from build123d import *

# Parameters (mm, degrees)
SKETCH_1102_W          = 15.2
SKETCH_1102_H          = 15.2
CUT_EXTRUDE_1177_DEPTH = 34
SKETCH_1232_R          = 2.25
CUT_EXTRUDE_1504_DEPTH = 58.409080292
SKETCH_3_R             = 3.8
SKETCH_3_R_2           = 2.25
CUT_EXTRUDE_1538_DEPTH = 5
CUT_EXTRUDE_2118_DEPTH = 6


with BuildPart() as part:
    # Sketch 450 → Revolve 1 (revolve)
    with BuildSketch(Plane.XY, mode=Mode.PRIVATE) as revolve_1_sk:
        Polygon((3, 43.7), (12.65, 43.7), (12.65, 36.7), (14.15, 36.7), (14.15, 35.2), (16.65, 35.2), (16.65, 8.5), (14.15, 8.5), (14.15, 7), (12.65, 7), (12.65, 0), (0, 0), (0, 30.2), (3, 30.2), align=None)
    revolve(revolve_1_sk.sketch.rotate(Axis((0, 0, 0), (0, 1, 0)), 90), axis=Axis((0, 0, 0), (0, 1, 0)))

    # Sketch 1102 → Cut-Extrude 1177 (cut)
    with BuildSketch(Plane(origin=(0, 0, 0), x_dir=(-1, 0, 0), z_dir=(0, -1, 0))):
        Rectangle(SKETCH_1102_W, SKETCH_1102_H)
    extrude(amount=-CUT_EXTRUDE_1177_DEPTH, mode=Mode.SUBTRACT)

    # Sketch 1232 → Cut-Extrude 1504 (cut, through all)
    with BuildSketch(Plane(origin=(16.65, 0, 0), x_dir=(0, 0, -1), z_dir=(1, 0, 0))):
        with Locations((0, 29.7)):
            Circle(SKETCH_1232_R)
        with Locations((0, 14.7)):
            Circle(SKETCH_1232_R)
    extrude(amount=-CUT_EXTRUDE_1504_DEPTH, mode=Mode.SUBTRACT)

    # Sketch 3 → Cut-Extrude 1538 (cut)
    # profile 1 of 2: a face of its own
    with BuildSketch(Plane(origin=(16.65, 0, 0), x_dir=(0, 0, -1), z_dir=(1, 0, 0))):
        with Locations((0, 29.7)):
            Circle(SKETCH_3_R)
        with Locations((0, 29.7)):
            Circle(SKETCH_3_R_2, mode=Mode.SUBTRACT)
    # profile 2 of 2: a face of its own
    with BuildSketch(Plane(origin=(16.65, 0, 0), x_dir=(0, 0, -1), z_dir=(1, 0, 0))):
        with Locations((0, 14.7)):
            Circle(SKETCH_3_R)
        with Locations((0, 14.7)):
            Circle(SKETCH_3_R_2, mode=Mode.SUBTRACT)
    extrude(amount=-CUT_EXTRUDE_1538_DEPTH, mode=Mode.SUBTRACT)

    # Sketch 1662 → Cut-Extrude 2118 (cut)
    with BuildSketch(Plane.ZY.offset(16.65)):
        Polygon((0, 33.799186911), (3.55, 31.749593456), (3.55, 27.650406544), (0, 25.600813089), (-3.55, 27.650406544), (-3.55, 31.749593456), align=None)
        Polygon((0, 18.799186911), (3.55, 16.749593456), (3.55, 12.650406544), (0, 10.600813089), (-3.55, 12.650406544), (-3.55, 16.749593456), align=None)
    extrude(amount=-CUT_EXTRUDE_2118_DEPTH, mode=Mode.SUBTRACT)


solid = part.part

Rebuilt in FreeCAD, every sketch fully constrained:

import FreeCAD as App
import Part
import Sketcher
Q = App.Units.Quantity

doc = App.newDocument("Part")
body = doc.addObject("PartDesign::Body", "Body")

# Sketch on XY plane
sketch1 = doc.addObject("Sketcher::SketchObject", "Sketch")
body.addObject(sketch1)
sketch1.AttachmentSupport = (doc.XY_Plane, [""])
sketch1.MapMode = "FlatFace"
sketch1.addGeometry(Part.LineSegment(App.Vector(12.7, 43.7, 0), App.Vector(3, 43.7, 0)), False)
sketch1.addGeometry(Part.LineSegment(App.Vector(3, 43.7, 0), App.Vector(3, 30.2, 0)), False)
sketch1.addGeometry(Part.LineSegment(App.Vector(3, 30.2, 0), App.Vector(0, 30.2, 0)), False)
sketch1.addGeometry(Part.LineSegment(App.Vector(0, 30.2, 0), App.Vector(0, 0, 0)), False)
sketch1.addGeometry(Part.LineSegment(App.Vector(0, 0, 0), App.Vector(12.7, 0, 0)), False)
sketch1.addGeometry(Part.LineSegment(App.Vector(12.7, 0, 0), App.Vector(12.7, 7, 0)), False)
sketch1.addGeometry(Part.LineSegment(App.Vector(12.7, 7, 0), App.Vector(14.2, 7, 0)), False)
sketch1.addGeometry(Part.LineSegment(App.Vector(14.2, 7, 0), App.Vector(14.2, 8.5, 0)), False)
sketch1.addGeometry(Part.LineSegment(App.Vector(14.2, 8.5, 0), App.Vector(16.6, 8.5, 0)), False)
sketch1.addGeometry(Part.LineSegment(App.Vector(16.6, 8.5, 0), App.Vector(16.6, 35.2, 0)), False)
sketch1.addGeometry(Part.LineSegment(App.Vector(16.6, 35.2, 0), App.Vector(14.2, 35.2, 0)), False)
sketch1.addGeometry(Part.LineSegment(App.Vector(14.2, 35.2, 0), App.Vector(14.2, 36.7, 0)), False)
sketch1.addGeometry(Part.LineSegment(App.Vector(14.2, 36.7, 0), App.Vector(12.7, 36.7, 0)), False)
sketch1.addGeometry(Part.LineSegment(App.Vector(12.7, 36.7, 0), App.Vector(12.7, 43.7, 0)), False)
sketch1.addConstraint(Sketcher.Constraint("Coincident", 0, 2, 1, 1))
sketch1.addConstraint(Sketcher.Constraint("Coincident", 1, 2, 2, 1))
sketch1.addConstraint(Sketcher.Constraint("Coincident", 2, 2, 3, 1))
sketch1.addConstraint(Sketcher.Constraint("Coincident", 3, 2, 4, 1))
sketch1.addConstraint(Sketcher.Constraint("Coincident", 4, 2, 5, 1))
sketch1.addConstraint(Sketcher.Constraint("Coincident", 5, 2, 6, 1))
sketch1.addConstraint(Sketcher.Constraint("Coincident", 6, 2, 7, 1))
sketch1.addConstraint(Sketcher.Constraint("Coincident", 7, 2, 8, 1))
sketch1.addConstraint(Sketcher.Constraint("Coincident", 8, 2, 9, 1))
sketch1.addConstraint(Sketcher.Constraint("Coincident", 9, 2, 10, 1))
sketch1.addConstraint(Sketcher.Constraint("Coincident", 10, 2, 11, 1))
sketch1.addConstraint(Sketcher.Constraint("Coincident", 11, 2, 12, 1))
sketch1.addConstraint(Sketcher.Constraint("Coincident", 12, 2, 13, 1))
sketch1.addConstraint(Sketcher.Constraint("Coincident", 13, 2, 0, 1))
sketch1.addConstraint(Sketcher.Constraint("Horizontal", 0))
sketch1.addConstraint(Sketcher.Constraint("Vertical", 1))
sketch1.addConstraint(Sketcher.Constraint("Horizontal", 2))
sketch1.addConstraint(Sketcher.Constraint("Vertical", 3))
sketch1.addConstraint(Sketcher.Constraint("Horizontal", 4))
sketch1.addConstraint(Sketcher.Constraint("Vertical", 5))
sketch1.addConstraint(Sketcher.Constraint("Horizontal", 6))
sketch1.addConstraint(Sketcher.Constraint("Vertical", 7))
sketch1.addConstraint(Sketcher.Constraint("Horizontal", 8))
sketch1.addConstraint(Sketcher.Constraint("Vertical", 9))
sketch1.addConstraint(Sketcher.Constraint("Horizontal", 10))
sketch1.addConstraint(Sketcher.Constraint("Vertical", 11))
sketch1.addConstraint(Sketcher.Constraint("Horizontal", 12))
sketch1.addConstraint(Sketcher.Constraint("Vertical", 13))
sketch1.addConstraint(Sketcher.Constraint("Coincident", 3, 2, -1, 1))
sketch1.addConstraint(Sketcher.Constraint("Vertical", 7, 2, 10, 2))
sketch1.addConstraint(Sketcher.Constraint("Vertical", 5, 2, 12, 2))
sketch1.addConstraint(Sketcher.Constraint("Equal", 12, 7))
sketch1.addConstraint(Sketcher.Constraint("Equal", 7, 11))
sketch1.addConstraint(Sketcher.Constraint("Equal", 5, 13))
sketch1.addConstraint(Sketcher.Constraint("DistanceX", 2, 2, 2, 1, 3.0))
sketch1.addConstraint(Sketcher.Constraint("DistanceY", 5, 1, 5, 2, 7.0))
sketch1.addConstraint(Sketcher.Constraint("DistanceX", 6, 1, 6, 2, 1.5))
sketch1.addConstraint(Sketcher.Constraint("DistanceX", 8, 1, 8, 2, 2.5))
sketch1.addConstraint(Sketcher.Constraint("DistanceY", 1, 2, 1, 1, 13.5))
sketch1.addConstraint(Sketcher.Constraint("DistanceY", 3, 2, 3, 1, 30.2))
sketch1.addConstraint(Sketcher.Constraint("DistanceX", 0, 2, 0, 1, 9.65))
revolution = doc.addObject("PartDesign::Revolution", "Revolution")
body.addObject(revolution)
revolution.Profile = sketch1
revolution.ReferenceAxis = (sketch1, ["V_Axis"])
revolution.Angle = 360

# Sketch on XZ plane
sketch2 = doc.addObject("Sketcher::SketchObject", "Sketch001")
body.addObject(sketch2)
sketch2.AttachmentSupport = (doc.XZ_Plane, [""])
sketch2.MapMode = "FlatFace"
sketch2.addGeometry(Part.LineSegment(App.Vector(8, -8, 0), App.Vector(8, 8, 0)), False)
sketch2.addGeometry(Part.LineSegment(App.Vector(8, 8, 0), App.Vector(-8, 8, 0)), False)
sketch2.addGeometry(Part.LineSegment(App.Vector(-8, 8, 0), App.Vector(-8, -8, 0)), False)
sketch2.addGeometry(Part.LineSegment(App.Vector(-8, -8, 0), App.Vector(8, -8, 0)), False)
sketch2.addConstraint(Sketcher.Constraint("Coincident", 0, 2, 1, 1))
sketch2.addConstraint(Sketcher.Constraint("Coincident", 1, 2, 2, 1))
sketch2.addConstraint(Sketcher.Constraint("Coincident", 2, 2, 3, 1))
sketch2.addConstraint(Sketcher.Constraint("Coincident", 3, 2, 0, 1))
sketch2.addConstraint(Sketcher.Constraint("Vertical", 0))
sketch2.addConstraint(Sketcher.Constraint("Horizontal", 1))
sketch2.addConstraint(Sketcher.Constraint("Vertical", 2))
sketch2.addConstraint(Sketcher.Constraint("Horizontal", 3))
sketch2.addConstraint(Sketcher.Constraint("Symmetric", 0, 2, 2, 2, -1, 1))
sketch2.addConstraint(Sketcher.Constraint("Equal", 3, 0))
sketch2.addConstraint(Sketcher.Constraint("DistanceX", 1, 2, 1, 1, 15.2))
pocket1 = doc.addObject("PartDesign::Pocket", "Pocket")
body.addObject(pocket1)
pocket1.Profile = sketch2
pocket1.Length = 34

# Sketch on YZ plane
sketch3 = doc.addObject("Sketcher::SketchObject", "Sketch002")
body.addObject(sketch3)
sketch3.AttachmentSupport = (doc.YZ_Plane, [""])
sketch3.MapMode = "FlatFace"
sketch3.AttachmentOffset = App.Placement(App.Vector(0, 0, 16.65), App.Rotation())
sketch3.addGeometry(Part.Circle(App.Vector(29.7, 0, 0), App.Vector(0, 0, 1), 2.2), False)
sketch3.addGeometry(Part.Circle(App.Vector(14.7, 0, 0), App.Vector(0, 0, 1), 2.2), False)
sketch3.addConstraint(Sketcher.Constraint("Equal", 0, 1))
sketch3.addConstraint(Sketcher.Constraint("PointOnObject", 0, 3, -1))
sketch3.addConstraint(Sketcher.Constraint("PointOnObject", 1, 3, -1))
sketch3.addConstraint(Sketcher.Constraint("Diameter", 0, 4.5))
sketch3.addConstraint(Sketcher.Constraint("DistanceX", 1, 3, 0, 3, 15.0))
sketch3.addConstraint(Sketcher.Constraint("DistanceX", -1, 1, 0, 3, 29.7))
pocket2 = doc.addObject("PartDesign::Pocket", "Pocket001")
body.addObject(pocket2)
pocket2.Profile = sketch3
pocket2.Type = "ThroughAll"

# Sketch on YZ plane
sketch4 = doc.addObject("Sketcher::SketchObject", "Sketch003")
body.addObject(sketch4)
sketch4.AttachmentSupport = (doc.YZ_Plane, [""])
sketch4.MapMode = "FlatFace"
sketch4.AttachmentOffset = App.Placement(App.Vector(0, 0, 16.65), App.Rotation())
sketch4.addGeometry(Part.Circle(App.Vector(29.7, 0, 0), App.Vector(0, 0, 1), 3.8), False)
sketch4.addGeometry(Part.Circle(App.Vector(29.7, 0, 0), App.Vector(0, 0, 1), 2.2), False)
sketch4.addGeometry(Part.Circle(App.Vector(14.7, 0, 0), App.Vector(0, 0, 1), 3.8), False)
sketch4.addGeometry(Part.Circle(App.Vector(14.7, 0, 0), App.Vector(0, 0, 1), 2.2), False)
sketch4.addConstraint(Sketcher.Constraint("Coincident", 1, 3, 0, 3))
sketch4.addConstraint(Sketcher.Constraint("Coincident", 3, 3, 2, 3))
sketch4.addConstraint(Sketcher.Constraint("Equal", 0, 2))
sketch4.addConstraint(Sketcher.Constraint("Equal", 1, 3))
sketch4.addConstraint(Sketcher.Constraint("PointOnObject", 0, 3, -1))
sketch4.addConstraint(Sketcher.Constraint("PointOnObject", 2, 3, -1))
sketch4.addConstraint(Sketcher.Constraint("Diameter", 0, 7.6))
sketch4.addConstraint(Sketcher.Constraint("Diameter", 1, 4.5))
sketch4.addConstraint(Sketcher.Constraint("DistanceX", 2, 3, 0, 3, 15.0))
sketch4.addConstraint(Sketcher.Constraint("DistanceX", -1, 1, 0, 3, 29.7))
pocket3 = doc.addObject("PartDesign::Pocket", "Pocket002")
body.addObject(pocket3)
pocket3.Profile = sketch4
pocket3.Length = 5

# Sketch on YZ plane
sketch5 = doc.addObject("Sketcher::SketchObject", "Sketch004")
body.addObject(sketch5)
sketch5.AttachmentSupport = (doc.YZ_Plane, [""])
sketch5.MapMode = "FlatFace"
sketch5.AttachmentOffset = App.Placement(App.Vector(0, 0, -16.65), App.Rotation())
sketch5.addGeometry(Part.LineSegment(App.Vector(31.7, 3.5, 0), App.Vector(33.8, 0, 0)), False)
sketch5.addGeometry(Part.LineSegment(App.Vector(33.8, 0, 0), App.Vector(31.7, -3.5, 0)), False)
sketch5.addGeometry(Part.LineSegment(App.Vector(31.7, -3.5, 0), App.Vector(27.7, -3.5, 0)), False)
sketch5.addGeometry(Part.LineSegment(App.Vector(27.7, -3.5, 0), App.Vector(25.6, 0, 0)), False)
sketch5.addGeometry(Part.LineSegment(App.Vector(25.6, 0, 0), App.Vector(27.7, 3.5, 0)), False)
sketch5.addGeometry(Part.LineSegment(App.Vector(27.7, 3.5, 0), App.Vector(31.7, 3.5, 0)), False)
sketch5.addGeometry(Part.LineSegment(App.Vector(16.7, 3.5, 0), App.Vector(18.8, 0, 0)), False)
sketch5.addGeometry(Part.LineSegment(App.Vector(18.8, 0, 0), App.Vector(16.7, -3.5, 0)), False)
sketch5.addGeometry(Part.LineSegment(App.Vector(16.7, -3.5, 0), App.Vector(12.7, -3.5, 0)), False)
sketch5.addGeometry(Part.LineSegment(App.Vector(12.7, -3.5, 0), App.Vector(10.6, 0, 0)), False)
sketch5.addGeometry(Part.LineSegment(App.Vector(10.6, 0, 0), App.Vector(12.7, 3.5, 0)), False)
sketch5.addGeometry(Part.LineSegment(App.Vector(12.7, 3.5, 0), App.Vector(16.7, 3.5, 0)), False)
sketch5.addConstraint(Sketcher.Constraint("Coincident", 0, 2, 1, 1))
sketch5.addConstraint(Sketcher.Constraint("Coincident", 1, 2, 2, 1))
sketch5.addConstraint(Sketcher.Constraint("Coincident", 2, 2, 3, 1))
sketch5.addConstraint(Sketcher.Constraint("Coincident", 3, 2, 4, 1))
sketch5.addConstraint(Sketcher.Constraint("Coincident", 4, 2, 5, 1))
sketch5.addConstraint(Sketcher.Constraint("Coincident", 5, 2, 0, 1))
sketch5.addConstraint(Sketcher.Constraint("Coincident", 6, 2, 7, 1))
sketch5.addConstraint(Sketcher.Constraint("Coincident", 7, 2, 8, 1))
sketch5.addConstraint(Sketcher.Constraint("Coincident", 8, 2, 9, 1))
sketch5.addConstraint(Sketcher.Constraint("Coincident", 9, 2, 10, 1))
sketch5.addConstraint(Sketcher.Constraint("Coincident", 10, 2, 11, 1))
sketch5.addConstraint(Sketcher.Constraint("Coincident", 11, 2, 6, 1))
sketch5.addConstraint(Sketcher.Constraint("Horizontal", 2))
sketch5.addConstraint(Sketcher.Constraint("Horizontal", 5))
sketch5.addConstraint(Sketcher.Constraint("Horizontal", 8))
sketch5.addConstraint(Sketcher.Constraint("Horizontal", 11))
sketch5.addConstraint(Sketcher.Constraint("Symmetric", 2, 2, 4, 2, -1))
sketch5.addConstraint(Sketcher.Constraint("Symmetric", 8, 2, 10, 2, -1))
sketch5.addConstraint(Sketcher.Constraint("PointOnObject", 0, 2, -1))
sketch5.addConstraint(Sketcher.Constraint("PointOnObject", 3, 2, -1))
sketch5.addConstraint(Sketcher.Constraint("PointOnObject", 6, 2, -1))
sketch5.addConstraint(Sketcher.Constraint("PointOnObject", 9, 2, -1))
sketch5.addConstraint(Sketcher.Constraint("Parallel", 0, 3))
sketch5.addConstraint(Sketcher.Constraint("Parallel", 1, 4))
sketch5.addConstraint(Sketcher.Constraint("Parallel", 3, 6))
sketch5.addConstraint(Sketcher.Constraint("Parallel", 4, 7))
sketch5.addConstraint(Sketcher.Constraint("Parallel", 6, 9))
sketch5.addConstraint(Sketcher.Constraint("Horizontal", 2, 2, 7, 2))
sketch5.addConstraint(Sketcher.Constraint("Equal", 5, 8))
sketch5.addConstraint(Sketcher.Constraint("Angle", 0, Q("-60 deg")))
sketch5.addConstraint(Sketcher.Constraint("DistanceX", 7, 2, 1, 2, 15.0))
sketch5.addConstraint(Sketcher.Constraint("DistanceY", 2, 2, 4, 2, 7.1))
sketch5.addConstraint(Sketcher.Constraint("DistanceX", 2, 2, 2, 1, 4.099187))
sketch5.addConstraint(Sketcher.Constraint("DistanceX", -1, 1, 0, 2, 33.799187))
pocket4 = doc.addObject("PartDesign::Pocket", "Pocket003")
body.addObject(pocket4)
pocket4.Profile = sketch5
pocket4.Length = 6
pocket4.Reversed = True

doc.recompute()
